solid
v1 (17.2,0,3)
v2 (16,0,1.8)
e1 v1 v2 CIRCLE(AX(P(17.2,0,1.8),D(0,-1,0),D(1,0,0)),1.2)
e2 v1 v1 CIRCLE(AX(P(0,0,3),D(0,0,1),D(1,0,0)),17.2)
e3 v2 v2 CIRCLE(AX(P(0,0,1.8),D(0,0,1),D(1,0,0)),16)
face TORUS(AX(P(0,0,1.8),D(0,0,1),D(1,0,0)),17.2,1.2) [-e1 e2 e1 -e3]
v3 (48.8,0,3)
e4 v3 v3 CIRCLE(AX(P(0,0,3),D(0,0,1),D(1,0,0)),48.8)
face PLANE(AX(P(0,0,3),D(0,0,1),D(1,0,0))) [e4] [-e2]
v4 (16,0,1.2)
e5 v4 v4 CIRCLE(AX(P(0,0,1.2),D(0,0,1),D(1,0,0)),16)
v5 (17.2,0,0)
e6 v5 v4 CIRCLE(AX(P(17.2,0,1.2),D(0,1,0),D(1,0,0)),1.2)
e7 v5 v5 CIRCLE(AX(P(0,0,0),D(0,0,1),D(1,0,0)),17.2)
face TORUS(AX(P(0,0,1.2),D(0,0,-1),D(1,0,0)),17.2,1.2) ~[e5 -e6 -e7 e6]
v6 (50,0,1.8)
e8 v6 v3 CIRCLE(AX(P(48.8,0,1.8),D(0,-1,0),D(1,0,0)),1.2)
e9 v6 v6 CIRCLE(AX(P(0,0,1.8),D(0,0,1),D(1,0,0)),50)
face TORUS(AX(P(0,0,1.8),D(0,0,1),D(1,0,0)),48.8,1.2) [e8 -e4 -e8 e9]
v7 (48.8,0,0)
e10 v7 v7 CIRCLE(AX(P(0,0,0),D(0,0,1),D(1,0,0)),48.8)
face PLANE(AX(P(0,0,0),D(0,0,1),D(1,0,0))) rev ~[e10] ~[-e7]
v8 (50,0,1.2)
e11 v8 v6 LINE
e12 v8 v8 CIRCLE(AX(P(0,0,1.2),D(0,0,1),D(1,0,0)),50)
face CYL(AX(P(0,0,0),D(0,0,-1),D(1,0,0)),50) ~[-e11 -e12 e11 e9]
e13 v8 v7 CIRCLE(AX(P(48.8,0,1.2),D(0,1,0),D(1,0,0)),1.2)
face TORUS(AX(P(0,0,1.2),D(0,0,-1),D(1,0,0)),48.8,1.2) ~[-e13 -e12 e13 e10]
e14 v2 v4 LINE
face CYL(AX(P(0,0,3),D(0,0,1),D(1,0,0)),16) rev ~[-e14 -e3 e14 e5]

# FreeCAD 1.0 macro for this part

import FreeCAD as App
import Part
import Sketcher

V = App.Vector
Q = App.Units.Quantity

doc = App.newDocument("Part")
body = doc.addObject("PartDesign::Body", "Body")

# Sketch on XY plane
sketch1 = body.newObject("Sketcher::SketchObject", "Sketch")
sketch1.AttachmentSupport = (doc.getObject("XY_Plane"), [""])
sketch1.MapMode = "FlatFace"
sketch1.addGeometry(Part.Circle(V(0, 0, 0), V(0, 0, 1), 50), False)
sketch1.addConstraint([
    Sketcher.Constraint("Coincident", 0, 3, -1, 1),
    Sketcher.Constraint("Diameter", 0, Q("100 mm")),
])
pad1 = body.newObject("PartDesign::Pad", "Pad")
pad1.Profile = sketch1
pad1.Length = 3

# Sketch on XY plane
sketch2 = body.newObject("Sketcher::SketchObject", "Sketch001")
sketch2.AttachmentSupport = (doc.getObject("XY_Plane"), [""])
sketch2.MapMode = "FlatFace"
sketch2.AttachmentOffset = App.Placement(V(0, 0, 3), App.Rotation())
sketch2.addGeometry(Part.Circle(V(0, 0, 0), V(0, 0, 1), 16), False)
sketch2.addConstraint([
    Sketcher.Constraint("Coincident", 0, 3, -1, 1),
    Sketcher.Constraint("Diameter", 0, Q("32 mm")),
])
pocket1 = body.newObject("PartDesign::Pocket", "Pocket")
pocket1.Profile = sketch2
pocket1.Type = "ThroughAll"
doc.recompute()

fillet = body.newObject("PartDesign::Fillet", "Fillet")
fillet.Base = (pocket1, ["Edge1"])
fillet.UseAllEdges = True
fillet.Radius = 1.2

doc.recompute()
